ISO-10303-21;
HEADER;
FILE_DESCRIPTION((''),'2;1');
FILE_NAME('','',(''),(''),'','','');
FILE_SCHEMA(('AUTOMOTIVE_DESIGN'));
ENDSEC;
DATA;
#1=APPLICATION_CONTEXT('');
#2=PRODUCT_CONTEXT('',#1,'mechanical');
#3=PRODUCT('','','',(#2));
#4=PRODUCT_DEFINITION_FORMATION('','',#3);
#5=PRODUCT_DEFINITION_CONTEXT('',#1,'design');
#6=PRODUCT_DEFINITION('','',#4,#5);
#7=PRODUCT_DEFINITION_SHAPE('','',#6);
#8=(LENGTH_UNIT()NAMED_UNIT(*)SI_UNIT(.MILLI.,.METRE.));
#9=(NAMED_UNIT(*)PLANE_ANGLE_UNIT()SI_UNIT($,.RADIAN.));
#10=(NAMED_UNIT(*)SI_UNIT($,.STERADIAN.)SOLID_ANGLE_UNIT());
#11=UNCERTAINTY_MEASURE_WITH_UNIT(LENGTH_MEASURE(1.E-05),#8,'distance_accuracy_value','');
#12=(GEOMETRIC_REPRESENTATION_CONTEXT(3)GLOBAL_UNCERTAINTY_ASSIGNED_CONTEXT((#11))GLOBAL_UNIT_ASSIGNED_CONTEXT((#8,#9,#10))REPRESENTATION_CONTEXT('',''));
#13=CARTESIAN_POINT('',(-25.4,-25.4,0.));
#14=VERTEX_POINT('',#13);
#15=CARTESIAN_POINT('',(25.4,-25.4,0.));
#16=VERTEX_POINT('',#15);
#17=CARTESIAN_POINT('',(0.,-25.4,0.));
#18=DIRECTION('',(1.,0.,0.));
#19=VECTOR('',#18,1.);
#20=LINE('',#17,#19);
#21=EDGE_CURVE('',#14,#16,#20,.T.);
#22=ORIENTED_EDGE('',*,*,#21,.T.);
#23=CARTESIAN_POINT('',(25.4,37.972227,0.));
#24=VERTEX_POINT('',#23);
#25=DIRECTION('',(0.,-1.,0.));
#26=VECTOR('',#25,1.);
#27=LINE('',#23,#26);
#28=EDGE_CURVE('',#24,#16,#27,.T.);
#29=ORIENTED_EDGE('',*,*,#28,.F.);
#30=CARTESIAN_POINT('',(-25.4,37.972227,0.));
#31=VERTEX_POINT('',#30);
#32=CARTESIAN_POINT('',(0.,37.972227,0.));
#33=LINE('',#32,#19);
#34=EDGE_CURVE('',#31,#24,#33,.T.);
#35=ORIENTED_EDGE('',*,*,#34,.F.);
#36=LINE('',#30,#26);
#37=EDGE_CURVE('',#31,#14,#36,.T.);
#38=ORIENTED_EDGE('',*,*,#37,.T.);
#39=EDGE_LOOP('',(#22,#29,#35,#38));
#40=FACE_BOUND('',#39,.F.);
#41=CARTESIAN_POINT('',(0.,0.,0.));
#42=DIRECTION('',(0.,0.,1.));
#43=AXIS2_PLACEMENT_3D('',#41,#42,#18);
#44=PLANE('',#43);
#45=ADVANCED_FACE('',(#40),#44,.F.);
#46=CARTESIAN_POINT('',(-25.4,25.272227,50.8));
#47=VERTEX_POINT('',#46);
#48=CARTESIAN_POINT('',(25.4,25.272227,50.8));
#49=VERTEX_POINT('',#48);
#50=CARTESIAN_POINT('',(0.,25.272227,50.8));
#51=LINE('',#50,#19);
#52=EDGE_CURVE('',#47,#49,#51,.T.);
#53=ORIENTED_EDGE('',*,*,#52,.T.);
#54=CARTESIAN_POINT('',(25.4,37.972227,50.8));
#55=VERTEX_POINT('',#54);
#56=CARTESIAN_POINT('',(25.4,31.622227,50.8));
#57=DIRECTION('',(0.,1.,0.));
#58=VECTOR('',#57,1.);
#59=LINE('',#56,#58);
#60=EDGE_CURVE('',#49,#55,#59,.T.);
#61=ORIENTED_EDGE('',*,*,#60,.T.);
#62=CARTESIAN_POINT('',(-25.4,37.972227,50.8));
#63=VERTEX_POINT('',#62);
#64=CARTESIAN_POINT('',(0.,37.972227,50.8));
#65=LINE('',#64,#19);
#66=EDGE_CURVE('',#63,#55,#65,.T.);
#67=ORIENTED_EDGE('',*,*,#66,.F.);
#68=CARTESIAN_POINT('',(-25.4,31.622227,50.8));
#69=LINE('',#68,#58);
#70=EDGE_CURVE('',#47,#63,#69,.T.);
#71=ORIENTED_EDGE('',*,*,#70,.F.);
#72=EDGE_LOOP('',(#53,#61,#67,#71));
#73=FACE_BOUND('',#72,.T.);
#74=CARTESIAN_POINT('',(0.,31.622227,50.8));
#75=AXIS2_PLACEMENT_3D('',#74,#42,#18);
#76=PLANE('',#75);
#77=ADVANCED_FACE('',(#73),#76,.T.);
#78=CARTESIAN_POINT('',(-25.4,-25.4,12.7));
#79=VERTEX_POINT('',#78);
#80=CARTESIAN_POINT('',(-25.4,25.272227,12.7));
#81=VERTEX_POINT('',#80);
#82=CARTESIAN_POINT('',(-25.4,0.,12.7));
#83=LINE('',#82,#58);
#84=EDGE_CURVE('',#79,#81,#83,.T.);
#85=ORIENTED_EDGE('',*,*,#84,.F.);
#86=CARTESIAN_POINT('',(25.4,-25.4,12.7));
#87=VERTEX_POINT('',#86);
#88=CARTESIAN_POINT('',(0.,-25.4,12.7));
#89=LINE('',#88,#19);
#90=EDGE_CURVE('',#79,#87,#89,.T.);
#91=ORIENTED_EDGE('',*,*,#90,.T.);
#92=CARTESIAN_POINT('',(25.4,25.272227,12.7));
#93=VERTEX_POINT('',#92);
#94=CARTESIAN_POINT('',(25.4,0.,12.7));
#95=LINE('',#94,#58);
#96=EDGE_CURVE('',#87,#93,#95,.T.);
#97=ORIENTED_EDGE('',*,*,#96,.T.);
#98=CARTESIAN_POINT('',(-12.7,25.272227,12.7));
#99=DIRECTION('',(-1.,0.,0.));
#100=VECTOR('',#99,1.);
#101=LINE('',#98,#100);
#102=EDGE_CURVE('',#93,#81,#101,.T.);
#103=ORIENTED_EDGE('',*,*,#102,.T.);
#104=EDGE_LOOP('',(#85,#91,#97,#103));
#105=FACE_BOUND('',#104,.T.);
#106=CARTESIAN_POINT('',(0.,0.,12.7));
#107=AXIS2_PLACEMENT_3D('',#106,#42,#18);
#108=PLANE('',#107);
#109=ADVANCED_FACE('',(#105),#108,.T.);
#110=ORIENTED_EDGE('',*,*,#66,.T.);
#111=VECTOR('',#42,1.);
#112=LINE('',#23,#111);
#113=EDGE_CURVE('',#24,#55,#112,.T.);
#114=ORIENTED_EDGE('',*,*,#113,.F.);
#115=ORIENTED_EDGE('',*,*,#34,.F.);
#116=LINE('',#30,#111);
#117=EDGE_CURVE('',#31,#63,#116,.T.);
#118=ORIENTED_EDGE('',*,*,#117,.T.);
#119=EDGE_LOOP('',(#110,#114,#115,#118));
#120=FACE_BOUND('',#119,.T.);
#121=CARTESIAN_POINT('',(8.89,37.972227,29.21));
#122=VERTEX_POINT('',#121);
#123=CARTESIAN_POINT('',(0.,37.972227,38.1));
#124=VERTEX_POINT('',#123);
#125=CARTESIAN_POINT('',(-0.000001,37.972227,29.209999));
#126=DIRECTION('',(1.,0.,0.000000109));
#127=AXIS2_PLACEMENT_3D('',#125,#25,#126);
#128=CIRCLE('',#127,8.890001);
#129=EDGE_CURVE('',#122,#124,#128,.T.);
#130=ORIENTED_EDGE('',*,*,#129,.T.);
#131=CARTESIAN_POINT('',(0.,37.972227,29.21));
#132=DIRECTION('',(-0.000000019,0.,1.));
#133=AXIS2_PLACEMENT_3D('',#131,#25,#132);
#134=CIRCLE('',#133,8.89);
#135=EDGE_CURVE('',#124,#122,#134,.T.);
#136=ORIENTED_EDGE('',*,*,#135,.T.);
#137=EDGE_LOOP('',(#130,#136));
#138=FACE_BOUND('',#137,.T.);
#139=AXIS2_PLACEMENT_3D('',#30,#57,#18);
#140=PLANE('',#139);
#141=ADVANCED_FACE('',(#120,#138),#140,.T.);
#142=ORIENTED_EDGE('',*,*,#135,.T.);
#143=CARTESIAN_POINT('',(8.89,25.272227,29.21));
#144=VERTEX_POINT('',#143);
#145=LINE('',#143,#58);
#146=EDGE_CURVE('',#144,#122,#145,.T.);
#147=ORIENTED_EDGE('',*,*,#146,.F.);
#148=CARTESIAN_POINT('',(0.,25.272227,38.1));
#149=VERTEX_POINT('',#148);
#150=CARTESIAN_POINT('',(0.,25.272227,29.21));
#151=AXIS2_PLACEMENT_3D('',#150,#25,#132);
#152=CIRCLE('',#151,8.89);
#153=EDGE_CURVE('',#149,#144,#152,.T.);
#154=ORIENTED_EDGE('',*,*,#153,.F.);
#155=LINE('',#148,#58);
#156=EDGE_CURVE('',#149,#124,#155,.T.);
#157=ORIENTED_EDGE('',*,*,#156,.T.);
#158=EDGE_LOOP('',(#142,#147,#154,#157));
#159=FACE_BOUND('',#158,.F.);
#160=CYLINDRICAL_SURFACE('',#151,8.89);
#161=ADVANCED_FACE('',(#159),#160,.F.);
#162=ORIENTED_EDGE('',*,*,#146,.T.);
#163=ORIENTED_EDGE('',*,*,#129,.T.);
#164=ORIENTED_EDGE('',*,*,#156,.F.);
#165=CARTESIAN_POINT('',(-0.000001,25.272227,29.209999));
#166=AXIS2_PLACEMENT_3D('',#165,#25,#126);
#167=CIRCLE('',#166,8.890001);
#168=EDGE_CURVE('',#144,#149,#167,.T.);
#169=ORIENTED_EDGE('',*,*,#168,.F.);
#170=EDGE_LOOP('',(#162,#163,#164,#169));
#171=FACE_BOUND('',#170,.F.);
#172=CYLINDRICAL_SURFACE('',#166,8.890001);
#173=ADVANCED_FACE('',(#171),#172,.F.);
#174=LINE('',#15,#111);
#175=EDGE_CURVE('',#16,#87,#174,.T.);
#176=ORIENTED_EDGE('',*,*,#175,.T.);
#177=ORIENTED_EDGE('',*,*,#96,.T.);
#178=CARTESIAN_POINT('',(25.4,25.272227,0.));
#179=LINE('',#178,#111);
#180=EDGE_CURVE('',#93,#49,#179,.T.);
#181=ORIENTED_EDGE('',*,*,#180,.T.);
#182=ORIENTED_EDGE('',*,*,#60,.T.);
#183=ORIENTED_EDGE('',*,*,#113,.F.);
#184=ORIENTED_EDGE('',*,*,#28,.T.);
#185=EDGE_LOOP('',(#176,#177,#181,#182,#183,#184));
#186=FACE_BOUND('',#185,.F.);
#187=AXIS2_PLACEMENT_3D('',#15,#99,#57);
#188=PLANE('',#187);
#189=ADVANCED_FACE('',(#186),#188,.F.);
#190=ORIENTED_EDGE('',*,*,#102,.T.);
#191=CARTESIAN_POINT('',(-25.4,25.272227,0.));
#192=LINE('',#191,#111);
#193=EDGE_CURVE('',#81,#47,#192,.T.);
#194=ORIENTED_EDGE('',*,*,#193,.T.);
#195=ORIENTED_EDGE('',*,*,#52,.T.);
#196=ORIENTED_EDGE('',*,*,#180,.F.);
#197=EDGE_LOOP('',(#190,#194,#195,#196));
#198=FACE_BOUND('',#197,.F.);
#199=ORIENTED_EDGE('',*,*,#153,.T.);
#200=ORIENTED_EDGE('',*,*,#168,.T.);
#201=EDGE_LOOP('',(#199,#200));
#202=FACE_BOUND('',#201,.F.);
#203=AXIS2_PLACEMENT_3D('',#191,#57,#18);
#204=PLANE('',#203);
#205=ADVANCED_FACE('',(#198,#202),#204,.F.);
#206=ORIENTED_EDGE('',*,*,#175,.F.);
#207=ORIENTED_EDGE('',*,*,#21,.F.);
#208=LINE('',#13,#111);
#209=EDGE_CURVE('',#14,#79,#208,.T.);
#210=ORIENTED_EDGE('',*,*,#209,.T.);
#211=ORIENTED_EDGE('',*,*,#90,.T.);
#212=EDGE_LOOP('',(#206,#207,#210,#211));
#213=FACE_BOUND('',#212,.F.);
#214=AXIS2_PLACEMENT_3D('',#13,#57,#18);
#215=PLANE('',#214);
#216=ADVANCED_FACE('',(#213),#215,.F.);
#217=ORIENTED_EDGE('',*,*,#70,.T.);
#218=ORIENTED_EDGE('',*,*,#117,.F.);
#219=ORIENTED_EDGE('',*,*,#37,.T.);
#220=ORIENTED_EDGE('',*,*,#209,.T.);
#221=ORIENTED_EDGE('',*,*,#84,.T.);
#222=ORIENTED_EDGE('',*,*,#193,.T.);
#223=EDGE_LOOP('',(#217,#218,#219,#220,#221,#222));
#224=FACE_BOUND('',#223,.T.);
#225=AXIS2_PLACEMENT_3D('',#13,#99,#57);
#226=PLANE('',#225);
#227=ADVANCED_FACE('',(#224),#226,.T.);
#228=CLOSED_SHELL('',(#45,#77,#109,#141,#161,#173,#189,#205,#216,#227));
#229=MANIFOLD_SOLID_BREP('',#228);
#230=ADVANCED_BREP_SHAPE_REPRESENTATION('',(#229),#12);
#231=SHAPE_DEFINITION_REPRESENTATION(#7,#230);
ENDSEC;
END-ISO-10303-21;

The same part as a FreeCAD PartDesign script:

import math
import FreeCAD as App
import Part
import Sketcher

V = App.Vector
Q = App.Units.Quantity


def add_polygon(sketch, points):
    """Adds a closed chain of lines whose ends are joined by coincident constraints."""
    first, n = sketch.GeometryCount, len(points)
    for a, b in zip(points, points[1:] + points[:1]):
        sketch.addGeometry(Part.LineSegment(App.Vector(*a, 0), App.Vector(*b, 0)), False)
    for i in range(n):
        sketch.addConstraint(Sketcher.Constraint("Coincident", first + i, 2, first + (i + 1) % n, 1))

doc = App.newDocument("Part")
params = doc.addObject("Spreadsheet::Sheet", "Params")
for row, (alias, value) in enumerate([
    ("sketch1_width", "2 in"),
    ("pad1_length", "0.5 in"),
    ("sketch2_width", "2 in"),
    ("sketch2_height", "0.5 in"),
    ("pad2_length", "2 in"),
    ("sketch3_radius", "0.35 in"),
    ("pocket1_length", "0.5 in"),
], start=1):
    params.set(f"A{row}", alias)
    params.set(f"B{row}", "=" + value)
    params.setAlias(f"B{row}", alias)

body = doc.addObject("PartDesign::Body", "Body")

# Sketch on XY plane
sketch1 = body.newObject("Sketcher::SketchObject", "Sketch")
sketch1.AttachmentSupport = (doc.getObject("XY_Plane"), [""])
sketch1.MapMode = "FlatFace"
add_polygon(sketch1, [(-25.4, 25.4), (-25.4, -25.4), (25.4, -25.4), (25.4, 25.4)])  # lines 0-3
sketch1.addConstraint([
    Sketcher.Constraint("Vertical", 0),
    Sketcher.Constraint("Horizontal", 1),
    Sketcher.Constraint("Vertical", 2),
    Sketcher.Constraint("Horizontal", 3),
    Sketcher.Constraint("Symmetric", 0, 2, 2, 2, -1, 1),
    Sketcher.Constraint("Equal", 3, 0),
    Sketcher.Constraint("DistanceX", 1, 1, 1, 2, Q("2 in")),
])
sketch1.setExpression("Constraints[10]", "Params.sketch1_width")
pad1 = body.newObject("PartDesign::Pad", "Pad")
pad1.Profile = sketch1
pad1.setExpression("Length", "Params.pad1_length")

# Sketch on XY plane
sketch2 = body.newObject("Sketcher::SketchObject", "Sketch001")
sketch2.AttachmentSupport = (doc.getObject("XY_Plane"), [""])
sketch2.MapMode = "FlatFace"
add_polygon(sketch2, [(-25.4, 37.972227), (-25.4, 25.272227), (25.4, 25.272227), (25.4, 37.972227)])  # lines 0-3
sketch2.addConstraint([
    Sketcher.Constraint("Vertical", 0),
    Sketcher.Constraint("Horizontal", 1),
    Sketcher.Constraint("Vertical", 2),
    Sketcher.Constraint("Horizontal", 3),
    Sketcher.Constraint("DistanceX", 1, 1, 1, 2, Q("2 in")),
    Sketcher.Constraint("DistanceY", 0, 2, 0, 1, Q("0.5 in")),
    Sketcher.Constraint("DistanceX", 0, 2, -1, 1, Q("1 in")),
    Sketcher.Constraint("DistanceY", -1, 1, 0, 2, 25.272227),
])
sketch2.setExpression("Constraints[8]", "Params.sketch2_width")
sketch2.setExpression("Constraints[9]", "Params.sketch2_height")
pad2 = body.newObject("PartDesign::Pad", "Pad001")
pad2.Profile = sketch2
pad2.setExpression("Length", "Params.pad2_length")

# Sketch on XZ plane
sketch3 = body.newObject("Sketcher::SketchObject", "Sketch002")
sketch3.AttachmentSupport = (doc.getObject("XZ_Plane"), [""])
sketch3.MapMode = "FlatFace"
sketch3.AttachmentOffset = App.Placement(V(0, 0, -25.272227), App.Rotation())
sketch3.addGeometry([
    Part.ArcOfCircle(Part.Circle(V(0, 29.21, 0), V(0, 0, 1), 8.89), math.radians(90.000001), math.radians(359.999999)),
    Part.ArcOfCircle(Part.Circle(V(-0.000001, 29.209999, 0), V(0, 0, 1), 8.890001), math.radians(0.000006), math.radians(89.999994)),
], False)
sketch3.addConstraint([
    Sketcher.Constraint("Tangent", 0, 1, 1, 2),
    Sketcher.Constraint("Coincident", 1, 1, 0, 2),
    Sketcher.Constraint("PointOnObject", 0, 3, -2),
    Sketcher.Constraint("PointOnObject", 0, 1, -2),
    Sketcher.Constraint("Horizontal", 0, 3, 1, 1),
    Sketcher.Constraint("Radius", 0, Q("0.35 in")),
    Sketcher.Constraint("DistanceY", -1, 1, 0, 1, Q("1.5 in")),
])
sketch3.setExpression("Constraints[5]", "Params.sketch3_radius")
pocket1 = body.newObject("PartDesign::Pocket", "Pocket")
pocket1.Profile = sketch3
pocket1.setExpression("Length", "Params.pocket1_length")

doc.recompute()
